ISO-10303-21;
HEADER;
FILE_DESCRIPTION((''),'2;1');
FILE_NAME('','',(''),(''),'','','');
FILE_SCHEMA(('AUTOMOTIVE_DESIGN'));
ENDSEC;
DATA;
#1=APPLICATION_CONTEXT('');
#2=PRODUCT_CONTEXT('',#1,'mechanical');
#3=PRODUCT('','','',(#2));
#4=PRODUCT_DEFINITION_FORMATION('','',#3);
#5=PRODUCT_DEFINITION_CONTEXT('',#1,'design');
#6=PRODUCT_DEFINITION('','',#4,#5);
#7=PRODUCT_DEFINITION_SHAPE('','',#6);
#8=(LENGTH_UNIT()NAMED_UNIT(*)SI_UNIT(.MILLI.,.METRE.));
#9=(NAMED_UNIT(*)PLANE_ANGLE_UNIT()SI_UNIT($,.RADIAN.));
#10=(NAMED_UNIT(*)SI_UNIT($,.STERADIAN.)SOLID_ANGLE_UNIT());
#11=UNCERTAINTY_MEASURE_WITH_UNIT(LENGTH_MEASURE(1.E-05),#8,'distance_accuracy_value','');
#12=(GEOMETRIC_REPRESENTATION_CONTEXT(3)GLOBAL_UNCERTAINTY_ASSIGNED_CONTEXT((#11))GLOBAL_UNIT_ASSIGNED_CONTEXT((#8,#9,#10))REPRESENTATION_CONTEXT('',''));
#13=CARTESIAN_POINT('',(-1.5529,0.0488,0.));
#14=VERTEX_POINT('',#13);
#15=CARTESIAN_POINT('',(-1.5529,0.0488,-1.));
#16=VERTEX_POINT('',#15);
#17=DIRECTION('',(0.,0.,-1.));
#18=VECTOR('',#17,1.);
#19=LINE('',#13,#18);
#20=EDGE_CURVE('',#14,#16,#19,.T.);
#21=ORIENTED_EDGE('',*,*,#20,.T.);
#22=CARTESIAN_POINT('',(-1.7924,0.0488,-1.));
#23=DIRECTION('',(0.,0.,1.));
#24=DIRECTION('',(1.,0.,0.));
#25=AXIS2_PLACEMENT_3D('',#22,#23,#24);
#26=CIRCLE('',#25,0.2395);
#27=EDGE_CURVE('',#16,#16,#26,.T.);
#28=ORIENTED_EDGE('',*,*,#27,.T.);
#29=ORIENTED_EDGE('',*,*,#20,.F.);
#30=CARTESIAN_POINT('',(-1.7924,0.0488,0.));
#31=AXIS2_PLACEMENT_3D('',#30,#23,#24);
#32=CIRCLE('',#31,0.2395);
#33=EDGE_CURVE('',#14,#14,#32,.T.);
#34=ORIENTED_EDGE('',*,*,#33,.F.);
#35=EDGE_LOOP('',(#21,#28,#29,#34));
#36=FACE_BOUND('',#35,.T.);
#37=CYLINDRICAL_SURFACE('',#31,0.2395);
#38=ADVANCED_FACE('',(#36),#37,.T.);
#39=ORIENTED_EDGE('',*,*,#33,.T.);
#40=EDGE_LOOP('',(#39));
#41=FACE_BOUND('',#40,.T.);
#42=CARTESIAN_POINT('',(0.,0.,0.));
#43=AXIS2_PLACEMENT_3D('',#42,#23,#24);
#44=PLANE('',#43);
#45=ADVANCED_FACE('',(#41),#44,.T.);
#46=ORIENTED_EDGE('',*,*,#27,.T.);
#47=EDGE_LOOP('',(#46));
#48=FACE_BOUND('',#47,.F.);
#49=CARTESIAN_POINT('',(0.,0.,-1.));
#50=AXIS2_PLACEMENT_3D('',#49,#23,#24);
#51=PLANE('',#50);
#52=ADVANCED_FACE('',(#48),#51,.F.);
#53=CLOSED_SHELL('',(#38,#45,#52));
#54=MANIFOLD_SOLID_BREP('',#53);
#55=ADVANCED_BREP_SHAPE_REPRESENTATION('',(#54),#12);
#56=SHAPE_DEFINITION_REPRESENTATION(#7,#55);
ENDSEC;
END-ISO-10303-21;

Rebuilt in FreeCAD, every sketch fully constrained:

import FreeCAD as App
import Part
import Sketcher
from FreeCAD import Vector

doc = App.newDocument("Part")
params = doc.addObject("Spreadsheet::Sheet", "Params")
for row, (alias, value) in enumerate([
    ("pad1_length", "1 mm"),
], start=1):
    params.set(f"A{row}", alias)
    params.set(f"B{row}", "=" + value)
    params.setAlias(f"B{row}", alias)

body = doc.addObject("PartDesign::Body", "Body")

# Sketch on XY plane
sketch1 = body.newObject("Sketcher::SketchObject", "Sketch")
sketch1.AttachmentSupport = (doc.getObject("XY_Plane"), [""])
sketch1.MapMode = "FlatFace"
sketch1.addGeometry(Part.Circle(Vector(-1.79, 0.05, 0), Vector(0, 0, 1), 0.24), False)
sketch1.addConstraint([
    Sketcher.Constraint("Diameter", 0, 0.479),
    Sketcher.Constraint("DistanceX", 0, 3, -1, 1, 1.7924),
    Sketcher.Constraint("DistanceY", -1, 1, 0, 3, 0.0488),
])
pad1 = body.newObject("PartDesign::Pad", "Pad")
pad1.Profile = sketch1
pad1.setExpression("Length", "Params.pad1_length")
pad1.Reversed = True

doc.recompute()
